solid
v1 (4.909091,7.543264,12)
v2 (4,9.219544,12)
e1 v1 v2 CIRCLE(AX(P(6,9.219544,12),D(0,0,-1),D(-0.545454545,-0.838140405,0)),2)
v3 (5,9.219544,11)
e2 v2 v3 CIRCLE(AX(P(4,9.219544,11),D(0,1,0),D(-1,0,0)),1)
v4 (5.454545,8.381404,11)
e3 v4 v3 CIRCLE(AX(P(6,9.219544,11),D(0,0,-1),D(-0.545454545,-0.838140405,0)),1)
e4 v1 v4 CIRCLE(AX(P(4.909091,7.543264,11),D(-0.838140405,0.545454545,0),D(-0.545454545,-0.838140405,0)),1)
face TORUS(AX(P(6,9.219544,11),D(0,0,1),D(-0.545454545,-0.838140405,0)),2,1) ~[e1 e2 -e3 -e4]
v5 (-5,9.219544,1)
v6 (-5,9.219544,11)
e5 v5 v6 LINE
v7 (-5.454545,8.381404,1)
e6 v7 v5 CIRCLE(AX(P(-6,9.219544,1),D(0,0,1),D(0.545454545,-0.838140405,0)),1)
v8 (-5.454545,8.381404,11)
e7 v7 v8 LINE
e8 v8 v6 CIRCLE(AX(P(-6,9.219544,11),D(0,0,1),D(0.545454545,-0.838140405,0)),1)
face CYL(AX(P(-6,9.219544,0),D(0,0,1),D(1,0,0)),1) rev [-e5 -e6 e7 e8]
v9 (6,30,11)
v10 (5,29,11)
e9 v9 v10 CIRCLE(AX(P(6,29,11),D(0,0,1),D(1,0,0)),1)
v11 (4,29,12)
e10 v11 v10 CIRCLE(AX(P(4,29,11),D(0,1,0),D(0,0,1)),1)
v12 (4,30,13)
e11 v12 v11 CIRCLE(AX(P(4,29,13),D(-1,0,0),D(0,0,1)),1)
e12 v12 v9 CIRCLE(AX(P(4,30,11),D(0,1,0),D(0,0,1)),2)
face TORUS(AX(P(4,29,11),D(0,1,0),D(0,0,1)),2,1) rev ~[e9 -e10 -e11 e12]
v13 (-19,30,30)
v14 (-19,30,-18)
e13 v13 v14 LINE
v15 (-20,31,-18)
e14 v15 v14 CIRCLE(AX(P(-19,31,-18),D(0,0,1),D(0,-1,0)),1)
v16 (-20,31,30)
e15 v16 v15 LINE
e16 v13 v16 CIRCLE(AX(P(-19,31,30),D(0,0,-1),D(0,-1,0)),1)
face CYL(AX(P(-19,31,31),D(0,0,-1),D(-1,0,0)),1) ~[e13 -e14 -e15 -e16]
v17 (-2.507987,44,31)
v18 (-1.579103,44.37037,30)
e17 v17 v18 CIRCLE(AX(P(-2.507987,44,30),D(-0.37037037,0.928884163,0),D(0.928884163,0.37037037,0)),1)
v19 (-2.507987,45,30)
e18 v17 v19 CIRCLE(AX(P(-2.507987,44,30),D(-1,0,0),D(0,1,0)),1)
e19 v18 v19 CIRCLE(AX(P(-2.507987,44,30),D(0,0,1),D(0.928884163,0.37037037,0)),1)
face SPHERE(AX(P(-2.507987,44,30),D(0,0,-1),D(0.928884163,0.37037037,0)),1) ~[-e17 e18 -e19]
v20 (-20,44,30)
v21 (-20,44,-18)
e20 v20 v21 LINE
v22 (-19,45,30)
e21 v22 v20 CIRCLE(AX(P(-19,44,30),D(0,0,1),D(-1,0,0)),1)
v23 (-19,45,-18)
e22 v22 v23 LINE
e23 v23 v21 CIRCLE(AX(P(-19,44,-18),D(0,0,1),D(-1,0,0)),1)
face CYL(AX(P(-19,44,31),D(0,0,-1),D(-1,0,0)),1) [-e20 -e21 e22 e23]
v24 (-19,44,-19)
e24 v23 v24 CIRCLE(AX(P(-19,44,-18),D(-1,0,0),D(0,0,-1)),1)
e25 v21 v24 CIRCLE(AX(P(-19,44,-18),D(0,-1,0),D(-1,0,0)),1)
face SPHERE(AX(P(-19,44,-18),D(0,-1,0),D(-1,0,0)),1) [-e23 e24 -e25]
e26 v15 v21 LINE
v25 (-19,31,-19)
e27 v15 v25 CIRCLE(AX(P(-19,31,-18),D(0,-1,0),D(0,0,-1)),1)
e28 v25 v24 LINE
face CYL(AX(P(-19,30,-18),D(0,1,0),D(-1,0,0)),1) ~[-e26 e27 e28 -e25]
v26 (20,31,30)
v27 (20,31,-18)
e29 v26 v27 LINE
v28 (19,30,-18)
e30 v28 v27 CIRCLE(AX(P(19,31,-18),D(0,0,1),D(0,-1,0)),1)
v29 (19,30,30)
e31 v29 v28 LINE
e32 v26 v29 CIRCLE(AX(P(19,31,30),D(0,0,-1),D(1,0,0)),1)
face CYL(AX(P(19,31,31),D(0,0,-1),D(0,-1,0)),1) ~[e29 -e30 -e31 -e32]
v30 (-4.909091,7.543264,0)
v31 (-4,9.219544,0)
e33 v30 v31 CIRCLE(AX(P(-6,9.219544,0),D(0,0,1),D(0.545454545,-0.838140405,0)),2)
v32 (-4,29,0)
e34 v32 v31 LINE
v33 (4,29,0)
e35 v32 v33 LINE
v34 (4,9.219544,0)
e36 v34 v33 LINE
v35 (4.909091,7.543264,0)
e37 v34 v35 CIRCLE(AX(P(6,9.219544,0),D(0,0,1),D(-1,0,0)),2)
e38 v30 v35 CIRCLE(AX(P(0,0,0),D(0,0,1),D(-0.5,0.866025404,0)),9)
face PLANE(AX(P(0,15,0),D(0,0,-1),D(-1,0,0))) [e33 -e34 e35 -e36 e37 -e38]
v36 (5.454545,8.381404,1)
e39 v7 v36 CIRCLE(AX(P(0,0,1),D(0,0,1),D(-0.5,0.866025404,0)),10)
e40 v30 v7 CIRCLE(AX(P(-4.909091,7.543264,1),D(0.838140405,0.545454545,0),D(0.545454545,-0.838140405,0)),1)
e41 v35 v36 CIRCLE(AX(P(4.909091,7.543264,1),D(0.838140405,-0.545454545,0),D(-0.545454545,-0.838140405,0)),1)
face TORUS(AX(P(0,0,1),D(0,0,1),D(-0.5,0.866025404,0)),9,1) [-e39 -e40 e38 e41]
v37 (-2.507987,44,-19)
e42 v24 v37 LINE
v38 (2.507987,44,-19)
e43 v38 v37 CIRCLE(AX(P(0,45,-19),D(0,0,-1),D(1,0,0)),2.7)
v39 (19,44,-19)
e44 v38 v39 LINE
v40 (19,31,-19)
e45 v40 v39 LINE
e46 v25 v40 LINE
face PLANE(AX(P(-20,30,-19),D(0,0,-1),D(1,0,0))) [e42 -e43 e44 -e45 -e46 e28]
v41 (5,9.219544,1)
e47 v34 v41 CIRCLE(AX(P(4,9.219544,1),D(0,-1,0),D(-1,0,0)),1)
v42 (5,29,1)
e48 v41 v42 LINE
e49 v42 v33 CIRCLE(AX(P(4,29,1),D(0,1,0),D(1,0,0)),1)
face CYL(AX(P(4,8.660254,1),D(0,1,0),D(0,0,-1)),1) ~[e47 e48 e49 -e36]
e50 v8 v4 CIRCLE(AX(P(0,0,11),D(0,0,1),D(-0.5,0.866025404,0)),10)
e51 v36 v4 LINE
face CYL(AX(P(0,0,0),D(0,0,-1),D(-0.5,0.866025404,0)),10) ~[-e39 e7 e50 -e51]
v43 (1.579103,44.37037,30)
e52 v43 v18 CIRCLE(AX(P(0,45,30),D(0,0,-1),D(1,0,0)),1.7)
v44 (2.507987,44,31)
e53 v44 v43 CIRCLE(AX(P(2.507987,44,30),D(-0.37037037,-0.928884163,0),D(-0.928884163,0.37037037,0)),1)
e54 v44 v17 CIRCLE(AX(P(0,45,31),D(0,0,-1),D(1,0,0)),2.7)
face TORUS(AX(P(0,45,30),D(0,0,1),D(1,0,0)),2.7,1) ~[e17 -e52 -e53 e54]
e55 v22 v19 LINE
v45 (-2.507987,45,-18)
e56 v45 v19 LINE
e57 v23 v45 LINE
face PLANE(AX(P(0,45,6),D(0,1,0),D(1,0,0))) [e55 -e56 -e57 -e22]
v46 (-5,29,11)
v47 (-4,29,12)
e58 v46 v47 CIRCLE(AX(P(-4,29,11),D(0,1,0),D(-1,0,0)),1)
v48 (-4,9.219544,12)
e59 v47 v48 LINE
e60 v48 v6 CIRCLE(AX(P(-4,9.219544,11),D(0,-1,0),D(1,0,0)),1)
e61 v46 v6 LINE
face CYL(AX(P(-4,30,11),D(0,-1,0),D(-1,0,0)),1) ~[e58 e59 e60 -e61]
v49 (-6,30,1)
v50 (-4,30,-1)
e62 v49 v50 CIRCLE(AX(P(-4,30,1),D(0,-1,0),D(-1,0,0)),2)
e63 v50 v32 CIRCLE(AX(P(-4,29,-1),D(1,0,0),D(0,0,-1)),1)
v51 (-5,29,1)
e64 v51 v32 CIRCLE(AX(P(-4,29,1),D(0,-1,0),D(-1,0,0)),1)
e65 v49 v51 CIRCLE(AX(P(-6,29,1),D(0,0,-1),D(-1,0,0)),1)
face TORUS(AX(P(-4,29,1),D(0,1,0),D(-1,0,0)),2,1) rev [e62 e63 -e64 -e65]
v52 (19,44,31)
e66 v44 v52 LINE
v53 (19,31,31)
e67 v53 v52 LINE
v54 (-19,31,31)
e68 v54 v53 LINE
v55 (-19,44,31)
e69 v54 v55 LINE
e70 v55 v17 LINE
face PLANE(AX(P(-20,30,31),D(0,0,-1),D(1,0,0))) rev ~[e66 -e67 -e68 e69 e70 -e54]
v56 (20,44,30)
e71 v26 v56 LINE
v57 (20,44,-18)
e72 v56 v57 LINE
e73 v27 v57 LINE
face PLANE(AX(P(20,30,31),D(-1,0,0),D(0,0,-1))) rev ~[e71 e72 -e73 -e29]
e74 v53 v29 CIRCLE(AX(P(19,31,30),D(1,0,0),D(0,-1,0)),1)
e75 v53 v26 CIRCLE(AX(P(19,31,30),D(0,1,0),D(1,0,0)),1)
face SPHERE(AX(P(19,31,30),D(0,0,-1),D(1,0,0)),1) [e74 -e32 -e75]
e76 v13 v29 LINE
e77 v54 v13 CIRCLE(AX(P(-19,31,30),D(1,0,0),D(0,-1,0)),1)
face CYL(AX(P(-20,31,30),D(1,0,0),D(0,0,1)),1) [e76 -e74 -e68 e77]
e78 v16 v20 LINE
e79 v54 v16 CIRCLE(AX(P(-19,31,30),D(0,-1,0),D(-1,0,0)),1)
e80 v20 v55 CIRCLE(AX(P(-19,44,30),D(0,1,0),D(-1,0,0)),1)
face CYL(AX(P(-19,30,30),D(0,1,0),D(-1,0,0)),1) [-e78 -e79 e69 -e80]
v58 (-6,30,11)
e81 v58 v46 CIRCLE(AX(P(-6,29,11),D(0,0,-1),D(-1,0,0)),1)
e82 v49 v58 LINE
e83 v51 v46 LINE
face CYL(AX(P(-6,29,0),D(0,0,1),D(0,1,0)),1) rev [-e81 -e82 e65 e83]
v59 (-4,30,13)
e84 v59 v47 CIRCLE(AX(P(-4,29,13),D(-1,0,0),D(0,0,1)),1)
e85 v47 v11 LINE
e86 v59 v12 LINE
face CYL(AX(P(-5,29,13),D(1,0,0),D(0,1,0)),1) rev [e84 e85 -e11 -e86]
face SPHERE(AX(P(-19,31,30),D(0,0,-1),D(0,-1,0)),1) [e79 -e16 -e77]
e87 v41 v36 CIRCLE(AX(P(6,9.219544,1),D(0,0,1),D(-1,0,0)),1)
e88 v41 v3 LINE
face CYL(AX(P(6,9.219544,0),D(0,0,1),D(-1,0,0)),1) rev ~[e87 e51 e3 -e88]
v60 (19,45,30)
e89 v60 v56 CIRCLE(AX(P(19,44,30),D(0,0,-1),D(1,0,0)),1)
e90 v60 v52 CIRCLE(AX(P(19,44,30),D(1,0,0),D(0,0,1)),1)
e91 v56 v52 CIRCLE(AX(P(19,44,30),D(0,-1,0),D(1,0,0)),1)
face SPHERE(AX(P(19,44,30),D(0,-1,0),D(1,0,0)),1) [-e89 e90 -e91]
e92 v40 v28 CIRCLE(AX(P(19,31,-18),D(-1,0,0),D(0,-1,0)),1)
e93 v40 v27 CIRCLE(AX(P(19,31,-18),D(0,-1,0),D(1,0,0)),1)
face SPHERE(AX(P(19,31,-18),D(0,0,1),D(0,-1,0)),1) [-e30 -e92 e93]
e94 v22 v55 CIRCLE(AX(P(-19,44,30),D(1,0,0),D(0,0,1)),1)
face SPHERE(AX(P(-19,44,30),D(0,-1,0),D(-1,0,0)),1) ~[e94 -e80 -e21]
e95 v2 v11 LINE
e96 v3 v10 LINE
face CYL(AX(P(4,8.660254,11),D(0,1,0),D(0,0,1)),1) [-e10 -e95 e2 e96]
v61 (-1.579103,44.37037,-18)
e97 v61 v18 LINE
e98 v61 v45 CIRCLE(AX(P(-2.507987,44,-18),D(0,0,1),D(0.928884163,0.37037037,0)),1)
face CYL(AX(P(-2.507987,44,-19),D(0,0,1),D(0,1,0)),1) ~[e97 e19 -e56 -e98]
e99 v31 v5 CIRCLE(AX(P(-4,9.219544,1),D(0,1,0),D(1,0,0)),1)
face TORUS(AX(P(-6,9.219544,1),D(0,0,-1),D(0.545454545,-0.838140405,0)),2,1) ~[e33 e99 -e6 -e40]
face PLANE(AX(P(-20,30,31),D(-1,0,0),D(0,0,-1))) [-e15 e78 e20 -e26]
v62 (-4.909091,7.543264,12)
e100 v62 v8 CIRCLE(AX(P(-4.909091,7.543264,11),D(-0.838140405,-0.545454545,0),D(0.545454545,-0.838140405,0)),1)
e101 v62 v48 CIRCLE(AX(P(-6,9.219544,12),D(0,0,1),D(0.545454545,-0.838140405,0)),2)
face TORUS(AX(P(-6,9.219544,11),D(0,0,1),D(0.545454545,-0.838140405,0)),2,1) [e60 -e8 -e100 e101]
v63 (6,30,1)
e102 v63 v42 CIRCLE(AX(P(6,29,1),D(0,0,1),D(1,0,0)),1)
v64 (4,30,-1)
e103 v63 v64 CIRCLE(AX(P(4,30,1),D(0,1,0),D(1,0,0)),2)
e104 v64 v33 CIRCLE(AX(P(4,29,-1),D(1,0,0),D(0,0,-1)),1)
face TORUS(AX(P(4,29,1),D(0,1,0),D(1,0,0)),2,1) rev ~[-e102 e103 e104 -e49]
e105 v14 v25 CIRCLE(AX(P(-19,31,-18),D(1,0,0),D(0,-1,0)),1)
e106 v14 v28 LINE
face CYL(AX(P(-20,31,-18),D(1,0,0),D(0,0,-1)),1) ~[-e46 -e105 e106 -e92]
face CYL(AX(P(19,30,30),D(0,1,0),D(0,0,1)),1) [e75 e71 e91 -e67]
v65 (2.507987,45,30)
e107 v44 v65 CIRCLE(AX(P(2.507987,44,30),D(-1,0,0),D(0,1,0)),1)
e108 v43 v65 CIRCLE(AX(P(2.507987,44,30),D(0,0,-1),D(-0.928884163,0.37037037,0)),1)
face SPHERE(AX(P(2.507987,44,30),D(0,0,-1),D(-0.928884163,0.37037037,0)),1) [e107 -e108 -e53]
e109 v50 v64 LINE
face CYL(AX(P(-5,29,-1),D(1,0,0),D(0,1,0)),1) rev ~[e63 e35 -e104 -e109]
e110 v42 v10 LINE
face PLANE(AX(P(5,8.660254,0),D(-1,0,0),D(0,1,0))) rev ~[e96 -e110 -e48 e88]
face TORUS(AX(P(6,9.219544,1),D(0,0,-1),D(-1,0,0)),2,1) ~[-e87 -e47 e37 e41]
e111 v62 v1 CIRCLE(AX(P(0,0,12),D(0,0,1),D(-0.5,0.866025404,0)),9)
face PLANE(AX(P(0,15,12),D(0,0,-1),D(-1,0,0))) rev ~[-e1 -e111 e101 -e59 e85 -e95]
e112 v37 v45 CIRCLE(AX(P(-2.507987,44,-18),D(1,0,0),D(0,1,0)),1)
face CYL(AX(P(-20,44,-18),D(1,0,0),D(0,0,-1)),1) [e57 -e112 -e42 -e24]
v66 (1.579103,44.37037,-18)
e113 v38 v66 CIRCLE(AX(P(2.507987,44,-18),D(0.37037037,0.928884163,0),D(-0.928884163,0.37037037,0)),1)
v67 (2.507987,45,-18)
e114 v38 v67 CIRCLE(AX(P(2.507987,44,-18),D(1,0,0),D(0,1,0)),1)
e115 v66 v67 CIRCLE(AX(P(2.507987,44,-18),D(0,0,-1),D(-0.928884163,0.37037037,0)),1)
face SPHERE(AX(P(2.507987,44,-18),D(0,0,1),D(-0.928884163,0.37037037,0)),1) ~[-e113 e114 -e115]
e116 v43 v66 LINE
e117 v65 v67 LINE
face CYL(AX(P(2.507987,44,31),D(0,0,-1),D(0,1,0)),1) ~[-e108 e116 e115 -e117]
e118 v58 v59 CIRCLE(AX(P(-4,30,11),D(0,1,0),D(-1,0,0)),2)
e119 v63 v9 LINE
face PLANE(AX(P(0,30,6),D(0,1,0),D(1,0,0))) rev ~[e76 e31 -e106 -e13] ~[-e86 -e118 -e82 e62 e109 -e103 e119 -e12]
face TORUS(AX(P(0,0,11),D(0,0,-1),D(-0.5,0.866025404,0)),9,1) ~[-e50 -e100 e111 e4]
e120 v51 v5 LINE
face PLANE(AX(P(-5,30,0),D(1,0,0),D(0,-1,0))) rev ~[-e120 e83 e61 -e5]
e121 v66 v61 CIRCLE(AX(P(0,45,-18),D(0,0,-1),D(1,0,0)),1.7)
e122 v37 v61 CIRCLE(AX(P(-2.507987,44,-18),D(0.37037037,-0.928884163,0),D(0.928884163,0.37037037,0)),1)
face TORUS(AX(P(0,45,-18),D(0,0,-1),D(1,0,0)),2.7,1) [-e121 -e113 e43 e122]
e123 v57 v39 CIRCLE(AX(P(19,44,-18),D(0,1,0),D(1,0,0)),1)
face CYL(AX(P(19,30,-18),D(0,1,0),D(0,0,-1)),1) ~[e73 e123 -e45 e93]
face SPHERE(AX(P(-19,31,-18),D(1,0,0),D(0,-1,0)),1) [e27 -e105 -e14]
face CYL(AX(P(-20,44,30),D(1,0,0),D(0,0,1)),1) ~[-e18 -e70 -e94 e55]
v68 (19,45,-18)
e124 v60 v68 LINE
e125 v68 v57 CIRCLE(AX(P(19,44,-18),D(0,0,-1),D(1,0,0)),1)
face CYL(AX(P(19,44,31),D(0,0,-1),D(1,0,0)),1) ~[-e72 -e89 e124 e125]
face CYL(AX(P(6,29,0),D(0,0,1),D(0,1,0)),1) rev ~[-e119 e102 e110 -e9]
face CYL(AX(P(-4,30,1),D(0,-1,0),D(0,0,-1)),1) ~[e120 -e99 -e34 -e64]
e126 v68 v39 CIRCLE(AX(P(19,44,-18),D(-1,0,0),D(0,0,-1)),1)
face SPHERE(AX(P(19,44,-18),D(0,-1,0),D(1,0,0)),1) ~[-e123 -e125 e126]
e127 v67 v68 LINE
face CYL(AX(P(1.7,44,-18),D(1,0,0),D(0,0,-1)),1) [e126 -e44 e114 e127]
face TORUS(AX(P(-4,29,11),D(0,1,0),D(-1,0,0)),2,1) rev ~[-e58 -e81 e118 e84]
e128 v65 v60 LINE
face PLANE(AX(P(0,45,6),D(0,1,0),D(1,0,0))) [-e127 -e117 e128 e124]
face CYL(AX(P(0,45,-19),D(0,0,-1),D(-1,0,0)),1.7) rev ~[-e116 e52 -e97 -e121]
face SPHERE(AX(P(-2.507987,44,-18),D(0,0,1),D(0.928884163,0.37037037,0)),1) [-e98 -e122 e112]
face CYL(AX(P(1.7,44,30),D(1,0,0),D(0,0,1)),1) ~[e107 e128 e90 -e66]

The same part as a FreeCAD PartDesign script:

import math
import FreeCAD as App
import Part
import Sketcher

V = App.Vector

doc = App.newDocument("Part")
body = doc.addObject("PartDesign::Body", "Body")

sketch1 = doc.addObject("Sketcher::SketchObject", "Sketch")
body.addObject(sketch1)
sketch1.AttachmentSupport = (doc.XY_Plane, [""])
sketch1.MapMode = "FlatFace"
sketch1.addGeometry([
    Part.LineSegment(V(5, 9, 0), V(5, 30, 0)),
    Part.LineSegment(V(5, 30, 0), V(-5, 30, 0)),
    Part.LineSegment(V(-5, 30, 0), V(-5, 9, 0)),
    Part.ArcOfCircle(Part.Circle(V(0, 0, 0), V(0, 0, 1), 10), math.radians(120), math.radians(420)),
], False)
sketch1.addConstraint([
    Sketcher.Constraint("Coincident", 0, 2, 1, 1),
    Sketcher.Constraint("Coincident", 1, 2, 2, 1),
    Sketcher.Constraint("Coincident", 2, 2, 3, 1),
    Sketcher.Constraint("Coincident", 3, 2, 0, 1),
    Sketcher.Constraint("Vertical", 0),
    Sketcher.Constraint("Horizontal", 1),
    Sketcher.Constraint("Vertical", 2),
    Sketcher.Constraint("Coincident", 3, 3, -1, 1),
    Sketcher.Constraint("Horizontal", 2, 2, 3, 2),
    Sketcher.Constraint("Radius", 3, 10.0),
    Sketcher.Constraint("DistanceX", 1, 2, 1, 1, 10.0),
    Sketcher.Constraint("DistanceY", -1, 1, 0, 2, 30.0),
])
pad1 = doc.addObject("PartDesign::Pad", "Pad")
body.addObject(pad1)
pad1.Profile = sketch1
pad1.Length = 12

sketch2 = doc.addObject("Sketcher::SketchObject", "Sketch001")
body.addObject(sketch2)
sketch2.AttachmentSupport = (doc.XZ_Plane, [""])
sketch2.MapMode = "FlatFace"
sketch2.AttachmentOffset = App.Placement(V(0, 0, -30), App.Rotation())
sketch2.addGeometry([
    Part.LineSegment(V(-20, -19, 0), V(-20, 31, 0)),
    Part.LineSegment(V(-20, 31, 0), V(20, 31, 0)),
    Part.LineSegment(V(20, 31, 0), V(20, -19, 0)),
    Part.LineSegment(V(20, -19, 0), V(-20, -19, 0)),
], False)
sketch2.addConstraint([
    Sketcher.Constraint("Coincident", 0, 2, 1, 1),
    Sketcher.Constraint("Coincident", 1, 2, 2, 1),
    Sketcher.Constraint("Coincident", 2, 2, 3, 1),
    Sketcher.Constraint("Coincident", 3, 2, 0, 1),
    Sketcher.Constraint("Vertical", 0),
    Sketcher.Constraint("Horizontal", 1),
    Sketcher.Constraint("Vertical", 2),
    Sketcher.Constraint("Horizontal", 3),
    Sketcher.Constraint("DistanceX", 1, 1, 1, 2, 40.0),
    Sketcher.Constraint("DistanceY", 0, 1, 0, 2, 50.0),
    Sketcher.Constraint("DistanceX", 0, 2, -1, 1, 20.0),
    Sketcher.Constraint("DistanceY", -1, 1, 0, 2, 31.0),
])
pad2 = doc.addObject("PartDesign::Pad", "Pad001")
body.addObject(pad2)
pad2.Profile = sketch2
pad2.Length = 15
pad2.Reversed = True

sketch3 = doc.addObject("Sketcher::SketchObject", "Sketch002")
body.addObject(sketch3)
sketch3.AttachmentSupport = (doc.XY_Plane, [""])
sketch3.MapMode = "FlatFace"
sketch3.AttachmentOffset = App.Placement(V(0, 0, -19), App.Rotation())
sketch3.addGeometry(Part.Circle(V(0, 45, 0), V(0, 0, 1), 1.7), False)
sketch3.addConstraint([
    Sketcher.Constraint("PointOnObject", 0, 3, -2),
    Sketcher.Constraint("Diameter", 0, 3.4),
    Sketcher.Constraint("DistanceY", -1, 1, 0, 3, 45.0),
])
pocket1 = doc.addObject("PartDesign::Pocket", "Pocket")
body.addObject(pocket1)
pocket1.Profile = sketch3
pocket1.Length = 53
pocket1.Reversed = True
doc.recompute()

fillet = doc.addObject("PartDesign::Fillet", "Fillet")
body.addObject(fillet)
fillet.Base = (pocket1, ["Edge1"])
fillet.UseAllEdges = True
fillet.Radius = 1

doc.recompute()
